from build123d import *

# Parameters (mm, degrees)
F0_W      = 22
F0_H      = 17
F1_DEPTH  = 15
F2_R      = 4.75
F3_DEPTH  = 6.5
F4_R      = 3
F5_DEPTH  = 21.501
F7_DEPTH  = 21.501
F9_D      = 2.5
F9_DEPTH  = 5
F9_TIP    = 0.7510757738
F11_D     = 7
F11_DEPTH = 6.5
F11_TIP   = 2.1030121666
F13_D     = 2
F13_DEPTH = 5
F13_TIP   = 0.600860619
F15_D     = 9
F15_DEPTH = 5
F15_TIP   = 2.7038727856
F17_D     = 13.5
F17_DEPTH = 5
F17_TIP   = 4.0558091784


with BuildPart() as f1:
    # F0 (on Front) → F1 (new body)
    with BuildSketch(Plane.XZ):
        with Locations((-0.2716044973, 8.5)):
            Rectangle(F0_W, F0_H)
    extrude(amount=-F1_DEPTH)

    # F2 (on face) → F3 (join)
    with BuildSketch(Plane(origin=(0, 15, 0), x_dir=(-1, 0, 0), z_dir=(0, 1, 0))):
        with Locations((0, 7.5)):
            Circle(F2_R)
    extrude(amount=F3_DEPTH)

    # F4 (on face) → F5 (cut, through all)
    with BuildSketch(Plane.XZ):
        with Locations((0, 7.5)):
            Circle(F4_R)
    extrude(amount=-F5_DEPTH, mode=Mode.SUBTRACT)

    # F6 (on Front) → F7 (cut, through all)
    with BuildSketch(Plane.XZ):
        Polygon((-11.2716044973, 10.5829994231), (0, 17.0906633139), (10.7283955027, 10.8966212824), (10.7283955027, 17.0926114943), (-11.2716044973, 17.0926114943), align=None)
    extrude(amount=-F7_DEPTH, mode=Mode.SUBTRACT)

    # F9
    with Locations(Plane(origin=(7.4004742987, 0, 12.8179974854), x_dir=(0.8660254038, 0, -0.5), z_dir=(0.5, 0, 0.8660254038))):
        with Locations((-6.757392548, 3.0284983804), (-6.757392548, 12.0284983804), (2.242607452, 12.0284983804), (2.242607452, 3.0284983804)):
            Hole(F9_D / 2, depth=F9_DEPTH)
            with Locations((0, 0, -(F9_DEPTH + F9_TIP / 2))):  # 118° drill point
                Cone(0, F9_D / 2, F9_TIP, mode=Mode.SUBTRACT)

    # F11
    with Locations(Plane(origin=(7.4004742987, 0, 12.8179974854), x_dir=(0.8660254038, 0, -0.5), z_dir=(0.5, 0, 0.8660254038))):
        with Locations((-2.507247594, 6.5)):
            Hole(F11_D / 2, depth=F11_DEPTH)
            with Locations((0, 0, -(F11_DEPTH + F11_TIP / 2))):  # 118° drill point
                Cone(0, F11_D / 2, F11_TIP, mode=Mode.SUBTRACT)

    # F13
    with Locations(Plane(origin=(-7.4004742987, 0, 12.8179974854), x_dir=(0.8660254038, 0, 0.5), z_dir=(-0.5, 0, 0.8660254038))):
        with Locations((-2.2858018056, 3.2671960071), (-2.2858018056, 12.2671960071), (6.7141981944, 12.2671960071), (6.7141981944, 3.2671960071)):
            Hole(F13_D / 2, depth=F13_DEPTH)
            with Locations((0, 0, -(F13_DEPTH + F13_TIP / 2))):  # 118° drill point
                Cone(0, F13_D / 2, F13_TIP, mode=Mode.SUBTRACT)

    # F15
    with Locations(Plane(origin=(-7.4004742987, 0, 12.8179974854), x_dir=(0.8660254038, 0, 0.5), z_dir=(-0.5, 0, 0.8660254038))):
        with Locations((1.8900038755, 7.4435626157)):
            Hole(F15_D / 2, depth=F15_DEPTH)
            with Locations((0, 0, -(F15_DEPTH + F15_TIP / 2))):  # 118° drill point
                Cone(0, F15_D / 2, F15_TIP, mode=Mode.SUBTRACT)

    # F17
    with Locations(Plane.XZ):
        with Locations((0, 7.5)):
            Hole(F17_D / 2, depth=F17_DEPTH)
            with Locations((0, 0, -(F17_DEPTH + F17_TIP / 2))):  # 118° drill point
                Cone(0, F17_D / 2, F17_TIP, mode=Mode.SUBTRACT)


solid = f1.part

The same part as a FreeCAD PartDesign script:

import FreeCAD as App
import Part
import Sketcher

V = App.Vector
Q = App.Units.Quantity

doc = App.newDocument("Part")
body = doc.addObject("PartDesign::Body", "Body")

sketch1 = doc.addObject("Sketcher::SketchObject", "Sketch")
body.addObject(sketch1)
sketch1.AttachmentSupport = (doc.XZ_Plane, [""])
sketch1.MapMode = "FlatFace"
sketch1.addGeometry(Part.LineSegment(V(-11, 17, 0), V(-11, 0, 0)), False)
sketch1.addGeometry(Part.LineSegment(V(-11, 0, 0), V(11, 0, 0)), False)
sketch1.addGeometry(Part.LineSegment(V(11, 0, 0), V(11, 17, 0)), False)
sketch1.addGeometry(Part.LineSegment(V(11, 17, 0), V(-11, 17, 0)), False)
sketch1.addConstraint(Sketcher.Constraint("Coincident", 0, 2, 1, 1))
sketch1.addConstraint(Sketcher.Constraint("Coincident", 1, 2, 2, 1))
sketch1.addConstraint(Sketcher.Constraint("Coincident", 2, 2, 3, 1))
sketch1.addConstraint(Sketcher.Constraint("Coincident", 3, 2, 0, 1))
sketch1.addConstraint(Sketcher.Constraint("Vertical", 0))
sketch1.addConstraint(Sketcher.Constraint("Horizontal", 1))
sketch1.addConstraint(Sketcher.Constraint("Vertical", 2))
sketch1.addConstraint(Sketcher.Constraint("Horizontal", 3))
sketch1.addConstraint(Sketcher.Constraint("PointOnObject", 0, 2, -1))
sketch1.addConstraint(Sketcher.Constraint("DistanceX", 1, 1, 1, 2, Q("22 mm")))
sketch1.addConstraint(Sketcher.Constraint("DistanceY", 0, 2, 0, 1, Q("17 mm")))
sketch1.addConstraint(Sketcher.Constraint("DistanceX", 0, 2, -1, 1, Q("11.271604 mm")))
pad1 = doc.addObject("PartDesign::Pad", "Pad")
body.addObject(pad1)
pad1.Profile = sketch1
pad1.Length = 15
pad1.Reversed = True

sketch2 = doc.addObject("Sketcher::SketchObject", "Sketch001")
body.addObject(sketch2)
sketch2.AttachmentSupport = (doc.XZ_Plane, [""])
sketch2.MapMode = "FlatFace"
sketch2.AttachmentOffset = App.Placement(V(0, 0, -15), App.Rotation())
sketch2.addGeometry(Part.Circle(V(0, 7.5, 0), V(0, 0, 1), 4.8), False)
sketch2.addConstraint(Sketcher.Constraint("PointOnObject", 0, 3, -2))
sketch2.addConstraint(Sketcher.Constraint("Diameter", 0, Q("9.5 mm")))
sketch2.addConstraint(Sketcher.Constraint("DistanceY", -1, 1, 0, 3, Q("7.5 mm")))
pad2 = doc.addObject("PartDesign::Pad", "Pad001")
body.addObject(pad2)
pad2.Profile = sketch2
pad2.Length = 6.5
pad2.Reversed = True

sketch3 = doc.addObject("Sketcher::SketchObject", "Sketch002")
body.addObject(sketch3)
sketch3.AttachmentSupport = (doc.XZ_Plane, [""])
sketch3.MapMode = "FlatFace"
sketch3.addGeometry(Part.Circle(V(0, 7.5, 0), V(0, 0, 1), 3), False)
sketch3.addConstraint(Sketcher.Constraint("PointOnObject", 0, 3, -2))
sketch3.addConstraint(Sketcher.Constraint("Diameter", 0, Q("6 mm")))
sketch3.addConstraint(Sketcher.Constraint("DistanceY", -1, 1, 0, 3, Q("7.5 mm")))
pocket1 = doc.addObject("PartDesign::Pocket", "Pocket")
body.addObject(pocket1)
pocket1.Profile = sketch3
pocket1.Type = "ThroughAll"

sketch4 = doc.addObject("Sketcher::SketchObject", "Sketch003")
body.addObject(sketch4)
sketch4.AttachmentSupport = (doc.XZ_Plane, [""])
sketch4.MapMode = "FlatFace"
sketch4.addGeometry(Part.LineSegment(V(-11, 11, 0), V(0, 17, 0)), False)
sketch4.addGeometry(Part.LineSegment(V(0, 17, 0), V(11, 11, 0)), False)
sketch4.addGeometry(Part.LineSegment(V(11, 11, 0), V(11, 17, 0)), False)
sketch4.addGeometry(Part.LineSegment(V(11, 17, 0), V(-11, 17, 0)), False)
sketch4.addGeometry(Part.LineSegment(V(-11, 17, 0), V(-11, 11, 0)), False)
sketch4.addConstraint(Sketcher.Constraint("Coincident", 0, 2, 1, 1))
sketch4.addConstraint(Sketcher.Constraint("Coincident", 1, 2, 2, 1))
sketch4.addConstraint(Sketcher.Constraint("Coincident", 2, 2, 3, 1))
sketch4.addConstraint(Sketcher.Constraint("Coincident", 3, 2, 4, 1))
sketch4.addConstraint(Sketcher.Constraint("Coincident", 4, 2, 0, 1))
sketch4.addConstraint(Sketcher.Constraint("Vertical", 2))
sketch4.addConstraint(Sketcher.Constraint("Horizontal", 3))
sketch4.addConstraint(Sketcher.Constraint("Vertical", 4))
sketch4.addConstraint(Sketcher.Constraint("PointOnObject", 0, 2, -2))
sketch4.addConstraint(Sketcher.Constraint("DistanceX", 3, 2, 3, 1, Q("22 mm")))
sketch4.addConstraint(Sketcher.Constraint("Angle", 0, Q("30 deg")))
sketch4.addConstraint(Sketcher.Constraint("Angle", 1, Q("-30 deg")))
sketch4.addConstraint(Sketcher.Constraint("DistanceY", -1, 1, 4, 2, Q("10.582999 mm")))
sketch4.addConstraint(Sketcher.Constraint("DistanceY", 2, 1, 2, 2, Q("6.19599 mm")))
sketch4.addConstraint(Sketcher.Constraint("DistanceY", 4, 2, 4, 1, Q("6.509612 mm")))
pocket2 = doc.addObject("PartDesign::Pocket", "Pocket001")
body.addObject(pocket2)
pocket2.Profile = sketch4
pocket2.Type = "ThroughAll"

sketch5 = doc.addObject("Sketcher::SketchObject", "Sketch004")
body.addObject(sketch5)
sketch5.Placement = App.Placement(V(7.400474, 0, 12.817997), App.Rotation(V(0.866025404, 0, -0.5), V(0, 1, 0), V(0.5, 0, 0.866025404), "ZXY"))
sketch5.addGeometry(Part.Circle(V(-6.8, 3, 0), V(0, 0, 1), 1.2), False)
sketch5.addGeometry(Part.Circle(V(-6.8, 12, 0), V(0, 0, 1), 1.2), False)
sketch5.addGeometry(Part.Circle(V(2.2, 12, 0), V(0, 0, 1), 1.2), False)
sketch5.addGeometry(Part.Circle(V(2.2, 3, 0), V(0, 0, 1), 1.2), False)
sketch5.addConstraint(Sketcher.Constraint("Equal", 0, 1))
sketch5.addConstraint(Sketcher.Constraint("Equal", 1, 2))
sketch5.addConstraint(Sketcher.Constraint("Equal", 2, 3))
sketch5.addConstraint(Sketcher.Constraint("Horizontal", 1, 3, 2, 3))
sketch5.addConstraint(Sketcher.Constraint("Horizontal", 0, 3, 3, 3))
sketch5.addConstraint(Sketcher.Constraint("Vertical", 0, 3, 1, 3))
sketch5.addConstraint(Sketcher.Constraint("Vertical", 2, 3, 3, 3))
sketch5.addConstraint(Sketcher.Constraint("Diameter", 0, Q("2.5 mm")))
sketch5.addConstraint(Sketcher.Constraint("DistanceY", 0, 3, 1, 3, Q("9 mm")))
sketch5.addConstraint(Sketcher.Constraint("DistanceX", 1, 3, 2, 3, Q("9 mm")))
sketch5.addConstraint(Sketcher.Constraint("DistanceY", -1, 1, 0, 3, Q("3.028498 mm")))
sketch5.addConstraint(Sketcher.Constraint("DistanceX", 0, 3, -1, 1, Q("6.757393 mm")))
doc.recompute()
hole = doc.addObject("PartDesign::Hole", "Hole")
body.addObject(hole)
hole.Profile = sketch5
hole.ThreadType = "None"
hole.Diameter = 2.5
hole.DepthType = "Dimension"
hole.Depth = 5
hole.DrillPoint = "Angled"
hole.DrillPointAngle = 118

sketch6 = doc.addObject("Sketcher::SketchObject", "Sketch005")
body.addObject(sketch6)
sketch6.Placement = App.Placement(V(7.400474, 0, 12.817997), App.Rotation(V(0.866025404, 0, -0.5), V(0, 1, 0), V(0.5, 0, 0.866025404), "ZXY"))
sketch6.addGeometry(Part.Circle(V(-2.5, 6.5, 0), V(0, 0, 1), 3.5), False)
sketch6.addConstraint(Sketcher.Constraint("Diameter", 0, Q("7 mm")))
sketch6.addConstraint(Sketcher.Constraint("DistanceY", -1, 1, 0, 3, Q("6.5 mm")))
sketch6.addConstraint(Sketcher.Constraint("DistanceX", 0, 3, -1, 1, Q("2.507248 mm")))
doc.recompute()
hole2 = doc.addObject("PartDesign::Hole", "Hole001")
body.addObject(hole2)
hole2.Profile = sketch6
hole2.ThreadType = "None"
hole2.Diameter = 7
hole2.DepthType = "Dimension"
hole2.Depth = 6.5
hole2.DrillPoint = "Angled"
hole2.DrillPointAngle = 118

sketch7 = doc.addObject("Sketcher::SketchObject", "Sketch006")
body.addObject(sketch7)
sketch7.Placement = App.Placement(V(-7.400474, 0, 12.817997), App.Rotation(V(0.866025404, 0, 0.5), V(0, 1, 0), V(-0.5, 0, 0.866025404), "ZXY"))
sketch7.addGeometry(Part.Circle(V(-2.3, 3.3, 0), V(0, 0, 1), 1), False)
sketch7.addGeometry(Part.Circle(V(-2.3, 12.3, 0), V(0, 0, 1), 1), False)
sketch7.addGeometry(Part.Circle(V(6.7, 12.3, 0), V(0, 0, 1), 1), False)
sketch7.addGeometry(Part.Circle(V(6.7, 3.3, 0), V(0, 0, 1), 1), False)
sketch7.addConstraint(Sketcher.Constraint("Equal", 0, 1))
sketch7.addConstraint(Sketcher.Constraint("Equal", 1, 2))
sketch7.addConstraint(Sketcher.Constraint("Equal", 2, 3))
sketch7.addConstraint(Sketcher.Constraint("Horizontal", 1, 3, 2, 3))
sketch7.addConstraint(Sketcher.Constraint("Horizontal", 0, 3, 3, 3))
sketch7.addConstraint(Sketcher.Constraint("Vertical", 0, 3, 1, 3))
sketch7.addConstraint(Sketcher.Constraint("Vertical", 2, 3, 3, 3))
sketch7.addConstraint(Sketcher.Constraint("Diameter", 0, Q("2 mm")))
sketch7.addConstraint(Sketcher.Constraint("DistanceY", 0, 3, 1, 3, Q("9 mm")))
sketch7.addConstraint(Sketcher.Constraint("DistanceX", 1, 3, 2, 3, Q("9 mm")))
sketch7.addConstraint(Sketcher.Constraint("DistanceX", 0, 3, -1, 1, Q("2.285802 mm")))
sketch7.addConstraint(Sketcher.Constraint("DistanceY", -1, 1, 0, 3, Q("3.267196 mm")))
doc.recompute()
hole3 = doc.addObject("PartDesign::Hole", "Hole002")
body.addObject(hole3)
hole3.Profile = sketch7
hole3.ThreadType = "None"
hole3.Diameter = 2
hole3.DepthType = "Dimension"
hole3.Depth = 5
hole3.DrillPoint = "Angled"
hole3.DrillPointAngle = 118

sketch8 = doc.addObject("Sketcher::SketchObject", "Sketch007")
body.addObject(sketch8)
sketch8.Placement = App.Placement(V(-7.400474, 0, 12.817997), App.Rotation(V(0.866025404, 0, 0.5), V(0, 1, 0), V(-0.5, 0, 0.866025404), "ZXY"))
sketch8.addGeometry(Part.Circle(V(1.9, 7.4, 0), V(0, 0, 1), 4.5), False)
sketch8.addConstraint(Sketcher.Constraint("Diameter", 0, Q("9 mm")))
sketch8.addConstraint(Sketcher.Constraint("DistanceX", -1, 1, 0, 3, Q("1.890004 mm")))
sketch8.addConstraint(Sketcher.Constraint("DistanceY", -1, 1, 0, 3, Q("7.443563 mm")))
doc.recompute()
hole4 = doc.addObject("PartDesign::Hole", "Hole003")
body.addObject(hole4)
hole4.Profile = sketch8
hole4.ThreadType = "None"
hole4.Diameter = 9
hole4.DepthType = "Dimension"
hole4.Depth = 5
hole4.DrillPoint = "Angled"
hole4.DrillPointAngle = 118

sketch9 = doc.addObject("Sketcher::SketchObject", "Sketch008")
body.addObject(sketch9)
sketch9.AttachmentSupport = (doc.XZ_Plane, [""])
sketch9.MapMode = "FlatFace"
sketch9.addGeometry(Part.Circle(V(0, 8, 0), V(0, 0, 1), 7), False)
sketch9.addConstraint(Sketcher.Constraint("PointOnObject", 0, 3, -2))
sketch9.addConstraint(Sketcher.Constraint("Diameter", 0, Q("13.5 mm")))
sketch9.addConstraint(Sketcher.Constraint("DistanceY", -1, 1, 0, 3, Q("7.5 mm")))
doc.recompute()
hole5 = doc.addObject("PartDesign::Hole", "Hole004")
body.addObject(hole5)
hole5.Profile = sketch9
hole5.ThreadType = "None"
hole5.Diameter = 13.5
hole5.DepthType = "Dimension"
hole5.Depth = 5
hole5.DrillPoint = "Angled"
hole5.DrillPointAngle = 118

doc.recompute()
